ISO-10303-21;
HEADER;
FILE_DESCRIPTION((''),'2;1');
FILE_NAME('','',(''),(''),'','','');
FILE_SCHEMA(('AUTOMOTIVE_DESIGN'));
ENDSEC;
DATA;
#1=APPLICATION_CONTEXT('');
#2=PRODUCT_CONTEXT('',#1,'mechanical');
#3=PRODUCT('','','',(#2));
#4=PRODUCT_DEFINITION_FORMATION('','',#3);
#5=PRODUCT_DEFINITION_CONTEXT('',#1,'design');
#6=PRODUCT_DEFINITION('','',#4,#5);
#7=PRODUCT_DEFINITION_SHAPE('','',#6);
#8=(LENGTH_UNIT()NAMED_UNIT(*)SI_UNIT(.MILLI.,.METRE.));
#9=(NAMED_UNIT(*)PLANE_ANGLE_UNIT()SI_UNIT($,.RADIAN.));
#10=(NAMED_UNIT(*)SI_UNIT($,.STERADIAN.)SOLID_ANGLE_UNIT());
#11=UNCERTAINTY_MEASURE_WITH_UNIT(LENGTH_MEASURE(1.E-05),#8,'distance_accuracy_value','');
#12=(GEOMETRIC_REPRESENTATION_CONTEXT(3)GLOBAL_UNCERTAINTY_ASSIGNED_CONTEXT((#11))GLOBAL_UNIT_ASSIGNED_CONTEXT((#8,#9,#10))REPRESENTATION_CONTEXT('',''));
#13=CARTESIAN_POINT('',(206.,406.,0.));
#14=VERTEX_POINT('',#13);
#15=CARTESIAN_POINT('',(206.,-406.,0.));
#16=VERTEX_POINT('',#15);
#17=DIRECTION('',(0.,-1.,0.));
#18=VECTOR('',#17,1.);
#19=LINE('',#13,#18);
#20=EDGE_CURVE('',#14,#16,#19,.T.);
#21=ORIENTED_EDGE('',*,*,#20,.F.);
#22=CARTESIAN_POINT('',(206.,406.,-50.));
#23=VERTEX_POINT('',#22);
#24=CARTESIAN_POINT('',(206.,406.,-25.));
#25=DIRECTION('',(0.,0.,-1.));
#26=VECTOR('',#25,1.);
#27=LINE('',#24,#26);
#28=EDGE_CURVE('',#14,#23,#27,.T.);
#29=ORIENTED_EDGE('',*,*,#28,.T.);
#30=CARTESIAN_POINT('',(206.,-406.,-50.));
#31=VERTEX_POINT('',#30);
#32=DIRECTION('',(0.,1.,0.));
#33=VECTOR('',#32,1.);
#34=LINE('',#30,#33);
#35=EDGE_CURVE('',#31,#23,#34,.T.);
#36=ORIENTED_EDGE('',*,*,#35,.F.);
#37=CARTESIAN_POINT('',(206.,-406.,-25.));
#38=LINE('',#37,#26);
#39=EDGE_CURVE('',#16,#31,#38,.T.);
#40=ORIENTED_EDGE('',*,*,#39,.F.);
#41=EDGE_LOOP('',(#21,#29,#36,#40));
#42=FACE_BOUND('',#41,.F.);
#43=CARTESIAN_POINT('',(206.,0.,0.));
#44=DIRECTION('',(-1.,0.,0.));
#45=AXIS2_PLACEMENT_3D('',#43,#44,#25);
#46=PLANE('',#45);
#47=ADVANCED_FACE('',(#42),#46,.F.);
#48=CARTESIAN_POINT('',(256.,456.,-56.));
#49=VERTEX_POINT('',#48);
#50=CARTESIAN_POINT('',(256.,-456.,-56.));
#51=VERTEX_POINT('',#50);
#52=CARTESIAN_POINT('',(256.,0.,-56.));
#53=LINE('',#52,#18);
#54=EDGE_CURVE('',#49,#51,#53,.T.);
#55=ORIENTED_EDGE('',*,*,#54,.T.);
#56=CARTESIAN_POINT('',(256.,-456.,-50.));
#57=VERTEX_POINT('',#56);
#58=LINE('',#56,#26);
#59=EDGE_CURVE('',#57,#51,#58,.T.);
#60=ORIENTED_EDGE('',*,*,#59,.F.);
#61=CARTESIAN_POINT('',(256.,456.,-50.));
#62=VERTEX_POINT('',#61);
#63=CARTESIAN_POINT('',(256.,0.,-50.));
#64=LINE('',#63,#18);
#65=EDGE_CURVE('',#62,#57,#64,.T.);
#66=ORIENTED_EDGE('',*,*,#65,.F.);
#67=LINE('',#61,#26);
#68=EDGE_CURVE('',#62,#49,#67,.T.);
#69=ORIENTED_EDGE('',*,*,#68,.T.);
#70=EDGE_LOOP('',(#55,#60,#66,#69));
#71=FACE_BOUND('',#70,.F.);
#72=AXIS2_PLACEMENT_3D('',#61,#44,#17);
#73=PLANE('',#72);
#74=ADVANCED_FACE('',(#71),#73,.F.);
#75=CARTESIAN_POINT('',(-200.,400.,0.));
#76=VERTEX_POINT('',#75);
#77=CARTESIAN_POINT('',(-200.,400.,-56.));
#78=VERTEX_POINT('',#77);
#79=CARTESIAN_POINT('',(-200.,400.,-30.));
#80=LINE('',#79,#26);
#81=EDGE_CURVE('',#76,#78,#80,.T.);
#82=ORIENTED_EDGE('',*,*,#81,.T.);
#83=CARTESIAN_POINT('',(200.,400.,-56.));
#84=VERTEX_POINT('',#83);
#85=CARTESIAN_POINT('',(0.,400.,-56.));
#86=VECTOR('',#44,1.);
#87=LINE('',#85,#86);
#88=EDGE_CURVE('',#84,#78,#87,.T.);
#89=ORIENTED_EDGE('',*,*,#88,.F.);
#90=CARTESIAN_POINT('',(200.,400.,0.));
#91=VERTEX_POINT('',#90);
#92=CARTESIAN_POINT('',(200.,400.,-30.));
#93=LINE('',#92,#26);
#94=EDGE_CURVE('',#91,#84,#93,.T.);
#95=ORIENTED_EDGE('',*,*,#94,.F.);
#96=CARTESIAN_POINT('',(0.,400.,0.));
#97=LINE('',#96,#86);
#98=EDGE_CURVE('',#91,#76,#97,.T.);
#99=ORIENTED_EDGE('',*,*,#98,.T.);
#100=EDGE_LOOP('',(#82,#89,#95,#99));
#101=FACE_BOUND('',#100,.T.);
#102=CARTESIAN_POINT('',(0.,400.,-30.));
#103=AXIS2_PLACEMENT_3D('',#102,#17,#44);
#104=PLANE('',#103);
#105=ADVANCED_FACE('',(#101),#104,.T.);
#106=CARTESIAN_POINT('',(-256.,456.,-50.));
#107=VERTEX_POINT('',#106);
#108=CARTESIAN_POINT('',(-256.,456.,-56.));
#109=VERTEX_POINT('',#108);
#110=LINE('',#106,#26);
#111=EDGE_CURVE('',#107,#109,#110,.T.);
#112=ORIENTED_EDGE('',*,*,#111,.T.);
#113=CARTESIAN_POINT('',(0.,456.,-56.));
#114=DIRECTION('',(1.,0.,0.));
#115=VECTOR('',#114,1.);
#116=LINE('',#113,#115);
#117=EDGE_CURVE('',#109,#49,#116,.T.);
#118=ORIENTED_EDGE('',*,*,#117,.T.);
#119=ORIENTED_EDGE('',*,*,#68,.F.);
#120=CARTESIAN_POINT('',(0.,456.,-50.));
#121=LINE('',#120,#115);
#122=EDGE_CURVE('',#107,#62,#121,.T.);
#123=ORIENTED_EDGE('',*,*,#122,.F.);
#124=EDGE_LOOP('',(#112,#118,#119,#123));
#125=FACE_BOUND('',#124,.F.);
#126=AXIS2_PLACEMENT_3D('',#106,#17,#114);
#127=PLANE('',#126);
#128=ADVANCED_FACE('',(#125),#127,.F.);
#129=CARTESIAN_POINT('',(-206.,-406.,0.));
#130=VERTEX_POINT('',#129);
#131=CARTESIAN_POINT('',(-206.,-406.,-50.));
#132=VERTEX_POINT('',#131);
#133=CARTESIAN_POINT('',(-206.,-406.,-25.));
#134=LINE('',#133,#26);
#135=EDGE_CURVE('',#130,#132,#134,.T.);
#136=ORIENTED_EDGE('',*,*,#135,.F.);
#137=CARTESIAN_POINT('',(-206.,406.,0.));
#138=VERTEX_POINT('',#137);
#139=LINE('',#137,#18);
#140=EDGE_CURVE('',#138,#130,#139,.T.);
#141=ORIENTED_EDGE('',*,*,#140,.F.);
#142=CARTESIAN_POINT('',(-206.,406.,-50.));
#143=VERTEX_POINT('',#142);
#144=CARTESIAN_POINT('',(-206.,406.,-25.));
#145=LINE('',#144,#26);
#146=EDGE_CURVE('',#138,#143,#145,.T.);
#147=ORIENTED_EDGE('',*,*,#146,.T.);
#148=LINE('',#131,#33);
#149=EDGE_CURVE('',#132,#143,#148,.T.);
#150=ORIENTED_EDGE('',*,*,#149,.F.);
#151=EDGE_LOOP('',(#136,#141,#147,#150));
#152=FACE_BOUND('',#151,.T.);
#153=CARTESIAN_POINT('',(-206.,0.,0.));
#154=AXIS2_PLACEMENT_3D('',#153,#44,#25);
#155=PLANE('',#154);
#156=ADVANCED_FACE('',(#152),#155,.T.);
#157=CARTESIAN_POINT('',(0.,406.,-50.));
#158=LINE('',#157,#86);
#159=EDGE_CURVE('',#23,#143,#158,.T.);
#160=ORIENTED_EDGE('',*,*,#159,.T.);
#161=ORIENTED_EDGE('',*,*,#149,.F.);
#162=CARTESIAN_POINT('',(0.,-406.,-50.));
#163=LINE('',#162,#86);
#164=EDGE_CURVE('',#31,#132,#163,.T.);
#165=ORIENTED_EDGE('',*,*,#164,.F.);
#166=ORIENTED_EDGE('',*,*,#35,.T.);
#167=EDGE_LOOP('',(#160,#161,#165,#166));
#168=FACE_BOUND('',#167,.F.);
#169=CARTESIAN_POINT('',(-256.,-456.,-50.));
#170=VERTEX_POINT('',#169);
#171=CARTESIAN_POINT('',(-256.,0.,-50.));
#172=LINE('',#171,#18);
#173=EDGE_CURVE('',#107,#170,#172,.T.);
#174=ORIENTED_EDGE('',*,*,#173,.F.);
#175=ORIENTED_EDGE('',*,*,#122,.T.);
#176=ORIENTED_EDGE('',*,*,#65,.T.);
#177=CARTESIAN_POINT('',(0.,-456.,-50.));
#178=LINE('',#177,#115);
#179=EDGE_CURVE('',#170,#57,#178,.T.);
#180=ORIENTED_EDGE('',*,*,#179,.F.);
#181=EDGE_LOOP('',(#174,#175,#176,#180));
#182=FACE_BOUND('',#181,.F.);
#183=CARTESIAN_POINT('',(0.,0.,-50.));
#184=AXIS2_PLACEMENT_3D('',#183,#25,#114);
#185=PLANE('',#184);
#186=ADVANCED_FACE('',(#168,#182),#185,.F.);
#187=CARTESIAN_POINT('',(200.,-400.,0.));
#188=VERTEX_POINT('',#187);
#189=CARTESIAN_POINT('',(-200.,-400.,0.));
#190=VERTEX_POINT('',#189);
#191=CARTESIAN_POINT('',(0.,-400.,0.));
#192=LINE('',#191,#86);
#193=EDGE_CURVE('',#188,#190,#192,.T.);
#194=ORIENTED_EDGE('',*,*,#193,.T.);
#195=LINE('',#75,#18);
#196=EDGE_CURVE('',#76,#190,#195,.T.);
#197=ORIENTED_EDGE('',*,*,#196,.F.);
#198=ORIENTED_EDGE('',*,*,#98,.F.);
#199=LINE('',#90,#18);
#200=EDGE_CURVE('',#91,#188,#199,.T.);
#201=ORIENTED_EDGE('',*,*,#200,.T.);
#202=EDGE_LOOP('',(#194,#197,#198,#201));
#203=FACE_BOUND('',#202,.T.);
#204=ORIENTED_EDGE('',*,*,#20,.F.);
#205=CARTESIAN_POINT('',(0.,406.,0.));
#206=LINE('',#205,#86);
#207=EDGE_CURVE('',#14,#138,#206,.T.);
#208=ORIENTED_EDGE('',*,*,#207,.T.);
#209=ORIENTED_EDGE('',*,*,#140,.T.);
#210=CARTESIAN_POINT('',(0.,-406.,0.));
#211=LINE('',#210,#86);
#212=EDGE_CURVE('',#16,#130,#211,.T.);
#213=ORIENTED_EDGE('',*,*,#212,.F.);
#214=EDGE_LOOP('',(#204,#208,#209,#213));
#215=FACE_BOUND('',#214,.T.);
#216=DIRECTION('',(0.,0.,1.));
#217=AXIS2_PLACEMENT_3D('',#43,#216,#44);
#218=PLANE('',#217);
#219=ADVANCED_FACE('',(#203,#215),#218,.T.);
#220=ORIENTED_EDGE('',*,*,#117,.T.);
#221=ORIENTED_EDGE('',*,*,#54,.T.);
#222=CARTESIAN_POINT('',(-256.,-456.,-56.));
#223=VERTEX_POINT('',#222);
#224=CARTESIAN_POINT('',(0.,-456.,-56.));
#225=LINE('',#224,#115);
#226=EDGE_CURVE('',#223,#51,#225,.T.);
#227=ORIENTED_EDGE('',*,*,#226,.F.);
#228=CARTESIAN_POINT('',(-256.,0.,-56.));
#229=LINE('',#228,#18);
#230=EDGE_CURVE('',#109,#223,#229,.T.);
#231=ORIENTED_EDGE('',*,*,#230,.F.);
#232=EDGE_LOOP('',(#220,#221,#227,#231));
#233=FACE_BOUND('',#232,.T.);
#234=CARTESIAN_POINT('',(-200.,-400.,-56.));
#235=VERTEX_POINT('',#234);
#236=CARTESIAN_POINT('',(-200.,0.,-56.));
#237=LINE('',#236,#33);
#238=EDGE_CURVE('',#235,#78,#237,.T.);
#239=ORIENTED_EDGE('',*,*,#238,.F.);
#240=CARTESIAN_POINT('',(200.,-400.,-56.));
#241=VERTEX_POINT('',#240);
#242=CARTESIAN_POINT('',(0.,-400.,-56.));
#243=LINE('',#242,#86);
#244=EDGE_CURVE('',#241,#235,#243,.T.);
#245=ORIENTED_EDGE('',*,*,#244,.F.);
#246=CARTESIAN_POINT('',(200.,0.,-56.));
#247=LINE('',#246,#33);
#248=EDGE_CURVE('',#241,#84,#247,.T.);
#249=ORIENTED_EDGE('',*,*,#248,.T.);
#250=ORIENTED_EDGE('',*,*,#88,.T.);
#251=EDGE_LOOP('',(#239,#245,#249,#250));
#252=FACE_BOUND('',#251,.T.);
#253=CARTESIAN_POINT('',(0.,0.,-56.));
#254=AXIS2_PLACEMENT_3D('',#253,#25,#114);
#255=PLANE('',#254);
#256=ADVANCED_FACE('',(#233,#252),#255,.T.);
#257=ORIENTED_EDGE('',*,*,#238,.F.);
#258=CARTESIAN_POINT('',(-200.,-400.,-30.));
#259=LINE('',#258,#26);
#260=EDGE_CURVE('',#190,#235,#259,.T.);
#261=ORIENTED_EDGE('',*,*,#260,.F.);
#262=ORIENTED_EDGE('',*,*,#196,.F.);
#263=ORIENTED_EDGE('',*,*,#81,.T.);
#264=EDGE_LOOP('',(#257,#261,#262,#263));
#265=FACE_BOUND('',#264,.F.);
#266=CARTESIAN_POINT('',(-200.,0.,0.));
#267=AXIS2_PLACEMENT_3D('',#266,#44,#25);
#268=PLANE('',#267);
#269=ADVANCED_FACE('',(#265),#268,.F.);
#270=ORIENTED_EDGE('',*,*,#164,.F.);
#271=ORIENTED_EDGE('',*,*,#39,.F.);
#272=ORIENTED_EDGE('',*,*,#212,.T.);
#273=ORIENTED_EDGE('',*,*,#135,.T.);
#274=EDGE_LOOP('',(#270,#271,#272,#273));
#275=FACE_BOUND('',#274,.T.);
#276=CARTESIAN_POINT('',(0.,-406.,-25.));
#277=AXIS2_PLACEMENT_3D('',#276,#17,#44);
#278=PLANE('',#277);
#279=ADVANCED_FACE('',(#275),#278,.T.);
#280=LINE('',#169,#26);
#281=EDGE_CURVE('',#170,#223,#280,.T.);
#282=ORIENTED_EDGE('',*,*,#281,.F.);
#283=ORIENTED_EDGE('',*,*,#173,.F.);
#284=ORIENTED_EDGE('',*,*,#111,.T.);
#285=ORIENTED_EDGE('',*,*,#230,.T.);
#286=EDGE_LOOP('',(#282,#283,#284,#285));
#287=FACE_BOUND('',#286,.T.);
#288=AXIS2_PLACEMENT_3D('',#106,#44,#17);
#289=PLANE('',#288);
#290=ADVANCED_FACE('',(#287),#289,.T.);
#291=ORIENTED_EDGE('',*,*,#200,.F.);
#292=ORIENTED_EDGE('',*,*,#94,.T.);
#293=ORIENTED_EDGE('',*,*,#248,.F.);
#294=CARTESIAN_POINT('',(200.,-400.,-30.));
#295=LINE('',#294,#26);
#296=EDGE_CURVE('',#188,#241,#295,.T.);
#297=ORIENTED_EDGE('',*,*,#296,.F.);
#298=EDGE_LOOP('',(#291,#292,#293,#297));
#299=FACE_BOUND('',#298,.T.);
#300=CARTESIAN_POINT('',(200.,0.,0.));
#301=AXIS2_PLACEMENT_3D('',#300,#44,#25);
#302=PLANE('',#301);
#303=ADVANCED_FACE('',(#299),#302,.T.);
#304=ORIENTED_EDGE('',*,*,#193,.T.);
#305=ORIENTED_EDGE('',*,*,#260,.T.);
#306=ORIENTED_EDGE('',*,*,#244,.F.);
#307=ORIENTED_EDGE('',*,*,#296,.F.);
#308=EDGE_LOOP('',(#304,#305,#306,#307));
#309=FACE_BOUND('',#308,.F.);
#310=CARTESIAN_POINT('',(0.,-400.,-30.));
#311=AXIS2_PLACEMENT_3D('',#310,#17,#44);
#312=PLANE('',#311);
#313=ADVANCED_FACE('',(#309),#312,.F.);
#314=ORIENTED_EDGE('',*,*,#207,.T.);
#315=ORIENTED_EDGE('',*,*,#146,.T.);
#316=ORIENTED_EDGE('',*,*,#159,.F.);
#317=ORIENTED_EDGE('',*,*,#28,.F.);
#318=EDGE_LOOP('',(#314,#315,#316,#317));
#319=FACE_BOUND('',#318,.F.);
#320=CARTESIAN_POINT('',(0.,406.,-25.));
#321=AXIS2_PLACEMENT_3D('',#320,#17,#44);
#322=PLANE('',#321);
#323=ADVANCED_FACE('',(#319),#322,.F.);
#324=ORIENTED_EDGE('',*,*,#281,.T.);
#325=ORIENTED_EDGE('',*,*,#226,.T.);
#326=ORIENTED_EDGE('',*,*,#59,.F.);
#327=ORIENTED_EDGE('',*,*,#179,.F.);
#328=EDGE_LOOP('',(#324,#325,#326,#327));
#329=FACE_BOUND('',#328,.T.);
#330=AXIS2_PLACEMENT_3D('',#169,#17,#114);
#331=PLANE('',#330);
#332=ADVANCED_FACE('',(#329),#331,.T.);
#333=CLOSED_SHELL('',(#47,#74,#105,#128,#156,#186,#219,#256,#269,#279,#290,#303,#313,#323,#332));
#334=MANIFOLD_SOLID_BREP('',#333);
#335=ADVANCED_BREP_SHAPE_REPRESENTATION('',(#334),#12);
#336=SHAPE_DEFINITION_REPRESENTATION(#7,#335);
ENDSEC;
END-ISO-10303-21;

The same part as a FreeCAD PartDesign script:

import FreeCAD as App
import Part
import Sketcher
from FreeCAD import Vector


def add_polygon(sketch, points):
    """Adds a closed chain of lines whose ends are joined by coincident constraints."""
    first, n = sketch.GeometryCount, len(points)
    for a, b in zip(points, points[1:] + points[:1]):
        sketch.addGeometry(Part.LineSegment(App.Vector(*a, 0), App.Vector(*b, 0)), False)
    for i in range(n):
        sketch.addConstraint(Sketcher.Constraint("Coincident", first + i, 2, first + (i + 1) % n, 1))

doc = App.newDocument("Part")
params = doc.addObject("Spreadsheet::Sheet", "Params")
for row, (alias, value) in enumerate([
    ("sketch1_width", "400 mm"),
    ("sketch1_height", "60 mm"),
    ("pad1_length", "800 mm"),
    ("sketch2_width", "412 mm"),
    ("sketch2_height", "50 mm"),
    ("pad2_length", "812 mm"),
    ("sketch3_width", "512 mm"),
    ("sketch3_height", "912 mm"),
    ("pad3_length", "6 mm"),
], start=1):
    params.set(f"A{row}", alias)
    params.set(f"B{row}", "=" + value)
    params.setAlias(f"B{row}", alias)

body = doc.addObject("PartDesign::Body", "Body")

sketch1 = body.newObject("Sketcher::SketchObject", "Sketch")
sketch1.AttachmentSupport = (doc.getObject("XZ_Plane"), [""])
sketch1.MapMode = "FlatFace"
add_polygon(sketch1, [(-200, 60), (-200, 0), (200, 0), (200, 60)])
sketch1.addConstraint(Sketcher.Constraint("Vertical", 0))
sketch1.addConstraint(Sketcher.Constraint("Horizontal", 1))
sketch1.addConstraint(Sketcher.Constraint("Vertical", 2))
sketch1.addConstraint(Sketcher.Constraint("Horizontal", 3))
sketch1.addConstraint(Sketcher.Constraint("Symmetric", 0, 2, 1, 2, -1, 1))
sketch1.addConstraint(Sketcher.Constraint("DistanceX", 1, 1, 1, 2, 400.0))
sketch1.addConstraint(Sketcher.Constraint("DistanceY", 0, 2, 0, 1, 60.0))
sketch1.setExpression("Constraints[9]", "Params.sketch1_width")
sketch1.setExpression("Constraints[10]", "Params.sketch1_height")
pad1 = body.newObject("PartDesign::Pad", "Pad")
pad1.Profile = sketch1
pad1.setExpression("Length", "Params.pad1_length")
pad1.Midplane = True
body2 = doc.addObject("PartDesign::Body", "Body001")

sketch2 = body2.newObject("Sketcher::SketchObject", "Sketch001")
sketch2.AttachmentSupport = (doc.getObject("XZ_Plane001"), [""])
sketch2.MapMode = "FlatFace"
add_polygon(sketch2, [(-206, 50), (-206, 0), (206, 0), (206, 50)])
sketch2.addConstraint(Sketcher.Constraint("Vertical", 0))
sketch2.addConstraint(Sketcher.Constraint("Horizontal", 1))
sketch2.addConstraint(Sketcher.Constraint("Vertical", 2))
sketch2.addConstraint(Sketcher.Constraint("Horizontal", 3))
sketch2.addConstraint(Sketcher.Constraint("Symmetric", 0, 2, 1, 2, -1, 1))
sketch2.addConstraint(Sketcher.Constraint("DistanceX", 1, 1, 1, 2, 412.0))
sketch2.addConstraint(Sketcher.Constraint("DistanceY", 0, 2, 0, 1, 50.0))
sketch2.setExpression("Constraints[9]", "Params.sketch2_width")
sketch2.setExpression("Constraints[10]", "Params.sketch2_height")
pad2 = body2.newObject("PartDesign::Pad", "Pad001")
pad2.Profile = sketch2
pad2.setExpression("Length", "Params.pad2_length")
pad2.Midplane = True

sketch3 = body2.newObject("Sketcher::SketchObject", "Sketch002")
sketch3.AttachmentSupport = (doc.getObject("XY_Plane001"), [""])
sketch3.MapMode = "FlatFace"
sketch3.AttachmentOffset = App.Placement(Vector(0, 0, 50), App.Rotation())
add_polygon(sketch3, [(256, -456), (256, 456), (-256, 456), (-256, -456)])
sketch3.addConstraint(Sketcher.Constraint("Vertical", 0))
sketch3.addConstraint(Sketcher.Constraint("Horizontal", 1))
sketch3.addConstraint(Sketcher.Constraint("Vertical", 2))
sketch3.addConstraint(Sketcher.Constraint("Horizontal", 3))
sketch3.addConstraint(Sketcher.Constraint("Symmetric", 0, 2, 2, 2, -1, 1))
sketch3.addConstraint(Sketcher.Constraint("DistanceX", 1, 2, 1, 1, 512.0))
sketch3.addConstraint(Sketcher.Constraint("DistanceY", 0, 1, 0, 2, 912.0))
sketch3.setExpression("Constraints[9]", "Params.sketch3_width")
sketch3.setExpression("Constraints[10]", "Params.sketch3_height")
pad3 = body2.newObject("PartDesign::Pad", "Pad002")
pad3.Profile = sketch3
pad3.setExpression("Length", "Params.pad3_length")
doc.recompute()

boolean = body2.newObject("PartDesign::Boolean", "Boolean")
boolean.Type = "Cut"
boolean.addObjects([body])
body3 = doc.addObject("PartDesign::Body", "Body002")
doc.recompute()

body2.Placement = App.Placement(Vector(0, 0, 0), App.Rotation(Vector(0, 1, 0), 180))
boolean2 = body3.newObject("PartDesign::Boolean", "Boolean001")
boolean2.Type = "Fuse"
boolean2.addObjects([body2])

doc.recompute()
